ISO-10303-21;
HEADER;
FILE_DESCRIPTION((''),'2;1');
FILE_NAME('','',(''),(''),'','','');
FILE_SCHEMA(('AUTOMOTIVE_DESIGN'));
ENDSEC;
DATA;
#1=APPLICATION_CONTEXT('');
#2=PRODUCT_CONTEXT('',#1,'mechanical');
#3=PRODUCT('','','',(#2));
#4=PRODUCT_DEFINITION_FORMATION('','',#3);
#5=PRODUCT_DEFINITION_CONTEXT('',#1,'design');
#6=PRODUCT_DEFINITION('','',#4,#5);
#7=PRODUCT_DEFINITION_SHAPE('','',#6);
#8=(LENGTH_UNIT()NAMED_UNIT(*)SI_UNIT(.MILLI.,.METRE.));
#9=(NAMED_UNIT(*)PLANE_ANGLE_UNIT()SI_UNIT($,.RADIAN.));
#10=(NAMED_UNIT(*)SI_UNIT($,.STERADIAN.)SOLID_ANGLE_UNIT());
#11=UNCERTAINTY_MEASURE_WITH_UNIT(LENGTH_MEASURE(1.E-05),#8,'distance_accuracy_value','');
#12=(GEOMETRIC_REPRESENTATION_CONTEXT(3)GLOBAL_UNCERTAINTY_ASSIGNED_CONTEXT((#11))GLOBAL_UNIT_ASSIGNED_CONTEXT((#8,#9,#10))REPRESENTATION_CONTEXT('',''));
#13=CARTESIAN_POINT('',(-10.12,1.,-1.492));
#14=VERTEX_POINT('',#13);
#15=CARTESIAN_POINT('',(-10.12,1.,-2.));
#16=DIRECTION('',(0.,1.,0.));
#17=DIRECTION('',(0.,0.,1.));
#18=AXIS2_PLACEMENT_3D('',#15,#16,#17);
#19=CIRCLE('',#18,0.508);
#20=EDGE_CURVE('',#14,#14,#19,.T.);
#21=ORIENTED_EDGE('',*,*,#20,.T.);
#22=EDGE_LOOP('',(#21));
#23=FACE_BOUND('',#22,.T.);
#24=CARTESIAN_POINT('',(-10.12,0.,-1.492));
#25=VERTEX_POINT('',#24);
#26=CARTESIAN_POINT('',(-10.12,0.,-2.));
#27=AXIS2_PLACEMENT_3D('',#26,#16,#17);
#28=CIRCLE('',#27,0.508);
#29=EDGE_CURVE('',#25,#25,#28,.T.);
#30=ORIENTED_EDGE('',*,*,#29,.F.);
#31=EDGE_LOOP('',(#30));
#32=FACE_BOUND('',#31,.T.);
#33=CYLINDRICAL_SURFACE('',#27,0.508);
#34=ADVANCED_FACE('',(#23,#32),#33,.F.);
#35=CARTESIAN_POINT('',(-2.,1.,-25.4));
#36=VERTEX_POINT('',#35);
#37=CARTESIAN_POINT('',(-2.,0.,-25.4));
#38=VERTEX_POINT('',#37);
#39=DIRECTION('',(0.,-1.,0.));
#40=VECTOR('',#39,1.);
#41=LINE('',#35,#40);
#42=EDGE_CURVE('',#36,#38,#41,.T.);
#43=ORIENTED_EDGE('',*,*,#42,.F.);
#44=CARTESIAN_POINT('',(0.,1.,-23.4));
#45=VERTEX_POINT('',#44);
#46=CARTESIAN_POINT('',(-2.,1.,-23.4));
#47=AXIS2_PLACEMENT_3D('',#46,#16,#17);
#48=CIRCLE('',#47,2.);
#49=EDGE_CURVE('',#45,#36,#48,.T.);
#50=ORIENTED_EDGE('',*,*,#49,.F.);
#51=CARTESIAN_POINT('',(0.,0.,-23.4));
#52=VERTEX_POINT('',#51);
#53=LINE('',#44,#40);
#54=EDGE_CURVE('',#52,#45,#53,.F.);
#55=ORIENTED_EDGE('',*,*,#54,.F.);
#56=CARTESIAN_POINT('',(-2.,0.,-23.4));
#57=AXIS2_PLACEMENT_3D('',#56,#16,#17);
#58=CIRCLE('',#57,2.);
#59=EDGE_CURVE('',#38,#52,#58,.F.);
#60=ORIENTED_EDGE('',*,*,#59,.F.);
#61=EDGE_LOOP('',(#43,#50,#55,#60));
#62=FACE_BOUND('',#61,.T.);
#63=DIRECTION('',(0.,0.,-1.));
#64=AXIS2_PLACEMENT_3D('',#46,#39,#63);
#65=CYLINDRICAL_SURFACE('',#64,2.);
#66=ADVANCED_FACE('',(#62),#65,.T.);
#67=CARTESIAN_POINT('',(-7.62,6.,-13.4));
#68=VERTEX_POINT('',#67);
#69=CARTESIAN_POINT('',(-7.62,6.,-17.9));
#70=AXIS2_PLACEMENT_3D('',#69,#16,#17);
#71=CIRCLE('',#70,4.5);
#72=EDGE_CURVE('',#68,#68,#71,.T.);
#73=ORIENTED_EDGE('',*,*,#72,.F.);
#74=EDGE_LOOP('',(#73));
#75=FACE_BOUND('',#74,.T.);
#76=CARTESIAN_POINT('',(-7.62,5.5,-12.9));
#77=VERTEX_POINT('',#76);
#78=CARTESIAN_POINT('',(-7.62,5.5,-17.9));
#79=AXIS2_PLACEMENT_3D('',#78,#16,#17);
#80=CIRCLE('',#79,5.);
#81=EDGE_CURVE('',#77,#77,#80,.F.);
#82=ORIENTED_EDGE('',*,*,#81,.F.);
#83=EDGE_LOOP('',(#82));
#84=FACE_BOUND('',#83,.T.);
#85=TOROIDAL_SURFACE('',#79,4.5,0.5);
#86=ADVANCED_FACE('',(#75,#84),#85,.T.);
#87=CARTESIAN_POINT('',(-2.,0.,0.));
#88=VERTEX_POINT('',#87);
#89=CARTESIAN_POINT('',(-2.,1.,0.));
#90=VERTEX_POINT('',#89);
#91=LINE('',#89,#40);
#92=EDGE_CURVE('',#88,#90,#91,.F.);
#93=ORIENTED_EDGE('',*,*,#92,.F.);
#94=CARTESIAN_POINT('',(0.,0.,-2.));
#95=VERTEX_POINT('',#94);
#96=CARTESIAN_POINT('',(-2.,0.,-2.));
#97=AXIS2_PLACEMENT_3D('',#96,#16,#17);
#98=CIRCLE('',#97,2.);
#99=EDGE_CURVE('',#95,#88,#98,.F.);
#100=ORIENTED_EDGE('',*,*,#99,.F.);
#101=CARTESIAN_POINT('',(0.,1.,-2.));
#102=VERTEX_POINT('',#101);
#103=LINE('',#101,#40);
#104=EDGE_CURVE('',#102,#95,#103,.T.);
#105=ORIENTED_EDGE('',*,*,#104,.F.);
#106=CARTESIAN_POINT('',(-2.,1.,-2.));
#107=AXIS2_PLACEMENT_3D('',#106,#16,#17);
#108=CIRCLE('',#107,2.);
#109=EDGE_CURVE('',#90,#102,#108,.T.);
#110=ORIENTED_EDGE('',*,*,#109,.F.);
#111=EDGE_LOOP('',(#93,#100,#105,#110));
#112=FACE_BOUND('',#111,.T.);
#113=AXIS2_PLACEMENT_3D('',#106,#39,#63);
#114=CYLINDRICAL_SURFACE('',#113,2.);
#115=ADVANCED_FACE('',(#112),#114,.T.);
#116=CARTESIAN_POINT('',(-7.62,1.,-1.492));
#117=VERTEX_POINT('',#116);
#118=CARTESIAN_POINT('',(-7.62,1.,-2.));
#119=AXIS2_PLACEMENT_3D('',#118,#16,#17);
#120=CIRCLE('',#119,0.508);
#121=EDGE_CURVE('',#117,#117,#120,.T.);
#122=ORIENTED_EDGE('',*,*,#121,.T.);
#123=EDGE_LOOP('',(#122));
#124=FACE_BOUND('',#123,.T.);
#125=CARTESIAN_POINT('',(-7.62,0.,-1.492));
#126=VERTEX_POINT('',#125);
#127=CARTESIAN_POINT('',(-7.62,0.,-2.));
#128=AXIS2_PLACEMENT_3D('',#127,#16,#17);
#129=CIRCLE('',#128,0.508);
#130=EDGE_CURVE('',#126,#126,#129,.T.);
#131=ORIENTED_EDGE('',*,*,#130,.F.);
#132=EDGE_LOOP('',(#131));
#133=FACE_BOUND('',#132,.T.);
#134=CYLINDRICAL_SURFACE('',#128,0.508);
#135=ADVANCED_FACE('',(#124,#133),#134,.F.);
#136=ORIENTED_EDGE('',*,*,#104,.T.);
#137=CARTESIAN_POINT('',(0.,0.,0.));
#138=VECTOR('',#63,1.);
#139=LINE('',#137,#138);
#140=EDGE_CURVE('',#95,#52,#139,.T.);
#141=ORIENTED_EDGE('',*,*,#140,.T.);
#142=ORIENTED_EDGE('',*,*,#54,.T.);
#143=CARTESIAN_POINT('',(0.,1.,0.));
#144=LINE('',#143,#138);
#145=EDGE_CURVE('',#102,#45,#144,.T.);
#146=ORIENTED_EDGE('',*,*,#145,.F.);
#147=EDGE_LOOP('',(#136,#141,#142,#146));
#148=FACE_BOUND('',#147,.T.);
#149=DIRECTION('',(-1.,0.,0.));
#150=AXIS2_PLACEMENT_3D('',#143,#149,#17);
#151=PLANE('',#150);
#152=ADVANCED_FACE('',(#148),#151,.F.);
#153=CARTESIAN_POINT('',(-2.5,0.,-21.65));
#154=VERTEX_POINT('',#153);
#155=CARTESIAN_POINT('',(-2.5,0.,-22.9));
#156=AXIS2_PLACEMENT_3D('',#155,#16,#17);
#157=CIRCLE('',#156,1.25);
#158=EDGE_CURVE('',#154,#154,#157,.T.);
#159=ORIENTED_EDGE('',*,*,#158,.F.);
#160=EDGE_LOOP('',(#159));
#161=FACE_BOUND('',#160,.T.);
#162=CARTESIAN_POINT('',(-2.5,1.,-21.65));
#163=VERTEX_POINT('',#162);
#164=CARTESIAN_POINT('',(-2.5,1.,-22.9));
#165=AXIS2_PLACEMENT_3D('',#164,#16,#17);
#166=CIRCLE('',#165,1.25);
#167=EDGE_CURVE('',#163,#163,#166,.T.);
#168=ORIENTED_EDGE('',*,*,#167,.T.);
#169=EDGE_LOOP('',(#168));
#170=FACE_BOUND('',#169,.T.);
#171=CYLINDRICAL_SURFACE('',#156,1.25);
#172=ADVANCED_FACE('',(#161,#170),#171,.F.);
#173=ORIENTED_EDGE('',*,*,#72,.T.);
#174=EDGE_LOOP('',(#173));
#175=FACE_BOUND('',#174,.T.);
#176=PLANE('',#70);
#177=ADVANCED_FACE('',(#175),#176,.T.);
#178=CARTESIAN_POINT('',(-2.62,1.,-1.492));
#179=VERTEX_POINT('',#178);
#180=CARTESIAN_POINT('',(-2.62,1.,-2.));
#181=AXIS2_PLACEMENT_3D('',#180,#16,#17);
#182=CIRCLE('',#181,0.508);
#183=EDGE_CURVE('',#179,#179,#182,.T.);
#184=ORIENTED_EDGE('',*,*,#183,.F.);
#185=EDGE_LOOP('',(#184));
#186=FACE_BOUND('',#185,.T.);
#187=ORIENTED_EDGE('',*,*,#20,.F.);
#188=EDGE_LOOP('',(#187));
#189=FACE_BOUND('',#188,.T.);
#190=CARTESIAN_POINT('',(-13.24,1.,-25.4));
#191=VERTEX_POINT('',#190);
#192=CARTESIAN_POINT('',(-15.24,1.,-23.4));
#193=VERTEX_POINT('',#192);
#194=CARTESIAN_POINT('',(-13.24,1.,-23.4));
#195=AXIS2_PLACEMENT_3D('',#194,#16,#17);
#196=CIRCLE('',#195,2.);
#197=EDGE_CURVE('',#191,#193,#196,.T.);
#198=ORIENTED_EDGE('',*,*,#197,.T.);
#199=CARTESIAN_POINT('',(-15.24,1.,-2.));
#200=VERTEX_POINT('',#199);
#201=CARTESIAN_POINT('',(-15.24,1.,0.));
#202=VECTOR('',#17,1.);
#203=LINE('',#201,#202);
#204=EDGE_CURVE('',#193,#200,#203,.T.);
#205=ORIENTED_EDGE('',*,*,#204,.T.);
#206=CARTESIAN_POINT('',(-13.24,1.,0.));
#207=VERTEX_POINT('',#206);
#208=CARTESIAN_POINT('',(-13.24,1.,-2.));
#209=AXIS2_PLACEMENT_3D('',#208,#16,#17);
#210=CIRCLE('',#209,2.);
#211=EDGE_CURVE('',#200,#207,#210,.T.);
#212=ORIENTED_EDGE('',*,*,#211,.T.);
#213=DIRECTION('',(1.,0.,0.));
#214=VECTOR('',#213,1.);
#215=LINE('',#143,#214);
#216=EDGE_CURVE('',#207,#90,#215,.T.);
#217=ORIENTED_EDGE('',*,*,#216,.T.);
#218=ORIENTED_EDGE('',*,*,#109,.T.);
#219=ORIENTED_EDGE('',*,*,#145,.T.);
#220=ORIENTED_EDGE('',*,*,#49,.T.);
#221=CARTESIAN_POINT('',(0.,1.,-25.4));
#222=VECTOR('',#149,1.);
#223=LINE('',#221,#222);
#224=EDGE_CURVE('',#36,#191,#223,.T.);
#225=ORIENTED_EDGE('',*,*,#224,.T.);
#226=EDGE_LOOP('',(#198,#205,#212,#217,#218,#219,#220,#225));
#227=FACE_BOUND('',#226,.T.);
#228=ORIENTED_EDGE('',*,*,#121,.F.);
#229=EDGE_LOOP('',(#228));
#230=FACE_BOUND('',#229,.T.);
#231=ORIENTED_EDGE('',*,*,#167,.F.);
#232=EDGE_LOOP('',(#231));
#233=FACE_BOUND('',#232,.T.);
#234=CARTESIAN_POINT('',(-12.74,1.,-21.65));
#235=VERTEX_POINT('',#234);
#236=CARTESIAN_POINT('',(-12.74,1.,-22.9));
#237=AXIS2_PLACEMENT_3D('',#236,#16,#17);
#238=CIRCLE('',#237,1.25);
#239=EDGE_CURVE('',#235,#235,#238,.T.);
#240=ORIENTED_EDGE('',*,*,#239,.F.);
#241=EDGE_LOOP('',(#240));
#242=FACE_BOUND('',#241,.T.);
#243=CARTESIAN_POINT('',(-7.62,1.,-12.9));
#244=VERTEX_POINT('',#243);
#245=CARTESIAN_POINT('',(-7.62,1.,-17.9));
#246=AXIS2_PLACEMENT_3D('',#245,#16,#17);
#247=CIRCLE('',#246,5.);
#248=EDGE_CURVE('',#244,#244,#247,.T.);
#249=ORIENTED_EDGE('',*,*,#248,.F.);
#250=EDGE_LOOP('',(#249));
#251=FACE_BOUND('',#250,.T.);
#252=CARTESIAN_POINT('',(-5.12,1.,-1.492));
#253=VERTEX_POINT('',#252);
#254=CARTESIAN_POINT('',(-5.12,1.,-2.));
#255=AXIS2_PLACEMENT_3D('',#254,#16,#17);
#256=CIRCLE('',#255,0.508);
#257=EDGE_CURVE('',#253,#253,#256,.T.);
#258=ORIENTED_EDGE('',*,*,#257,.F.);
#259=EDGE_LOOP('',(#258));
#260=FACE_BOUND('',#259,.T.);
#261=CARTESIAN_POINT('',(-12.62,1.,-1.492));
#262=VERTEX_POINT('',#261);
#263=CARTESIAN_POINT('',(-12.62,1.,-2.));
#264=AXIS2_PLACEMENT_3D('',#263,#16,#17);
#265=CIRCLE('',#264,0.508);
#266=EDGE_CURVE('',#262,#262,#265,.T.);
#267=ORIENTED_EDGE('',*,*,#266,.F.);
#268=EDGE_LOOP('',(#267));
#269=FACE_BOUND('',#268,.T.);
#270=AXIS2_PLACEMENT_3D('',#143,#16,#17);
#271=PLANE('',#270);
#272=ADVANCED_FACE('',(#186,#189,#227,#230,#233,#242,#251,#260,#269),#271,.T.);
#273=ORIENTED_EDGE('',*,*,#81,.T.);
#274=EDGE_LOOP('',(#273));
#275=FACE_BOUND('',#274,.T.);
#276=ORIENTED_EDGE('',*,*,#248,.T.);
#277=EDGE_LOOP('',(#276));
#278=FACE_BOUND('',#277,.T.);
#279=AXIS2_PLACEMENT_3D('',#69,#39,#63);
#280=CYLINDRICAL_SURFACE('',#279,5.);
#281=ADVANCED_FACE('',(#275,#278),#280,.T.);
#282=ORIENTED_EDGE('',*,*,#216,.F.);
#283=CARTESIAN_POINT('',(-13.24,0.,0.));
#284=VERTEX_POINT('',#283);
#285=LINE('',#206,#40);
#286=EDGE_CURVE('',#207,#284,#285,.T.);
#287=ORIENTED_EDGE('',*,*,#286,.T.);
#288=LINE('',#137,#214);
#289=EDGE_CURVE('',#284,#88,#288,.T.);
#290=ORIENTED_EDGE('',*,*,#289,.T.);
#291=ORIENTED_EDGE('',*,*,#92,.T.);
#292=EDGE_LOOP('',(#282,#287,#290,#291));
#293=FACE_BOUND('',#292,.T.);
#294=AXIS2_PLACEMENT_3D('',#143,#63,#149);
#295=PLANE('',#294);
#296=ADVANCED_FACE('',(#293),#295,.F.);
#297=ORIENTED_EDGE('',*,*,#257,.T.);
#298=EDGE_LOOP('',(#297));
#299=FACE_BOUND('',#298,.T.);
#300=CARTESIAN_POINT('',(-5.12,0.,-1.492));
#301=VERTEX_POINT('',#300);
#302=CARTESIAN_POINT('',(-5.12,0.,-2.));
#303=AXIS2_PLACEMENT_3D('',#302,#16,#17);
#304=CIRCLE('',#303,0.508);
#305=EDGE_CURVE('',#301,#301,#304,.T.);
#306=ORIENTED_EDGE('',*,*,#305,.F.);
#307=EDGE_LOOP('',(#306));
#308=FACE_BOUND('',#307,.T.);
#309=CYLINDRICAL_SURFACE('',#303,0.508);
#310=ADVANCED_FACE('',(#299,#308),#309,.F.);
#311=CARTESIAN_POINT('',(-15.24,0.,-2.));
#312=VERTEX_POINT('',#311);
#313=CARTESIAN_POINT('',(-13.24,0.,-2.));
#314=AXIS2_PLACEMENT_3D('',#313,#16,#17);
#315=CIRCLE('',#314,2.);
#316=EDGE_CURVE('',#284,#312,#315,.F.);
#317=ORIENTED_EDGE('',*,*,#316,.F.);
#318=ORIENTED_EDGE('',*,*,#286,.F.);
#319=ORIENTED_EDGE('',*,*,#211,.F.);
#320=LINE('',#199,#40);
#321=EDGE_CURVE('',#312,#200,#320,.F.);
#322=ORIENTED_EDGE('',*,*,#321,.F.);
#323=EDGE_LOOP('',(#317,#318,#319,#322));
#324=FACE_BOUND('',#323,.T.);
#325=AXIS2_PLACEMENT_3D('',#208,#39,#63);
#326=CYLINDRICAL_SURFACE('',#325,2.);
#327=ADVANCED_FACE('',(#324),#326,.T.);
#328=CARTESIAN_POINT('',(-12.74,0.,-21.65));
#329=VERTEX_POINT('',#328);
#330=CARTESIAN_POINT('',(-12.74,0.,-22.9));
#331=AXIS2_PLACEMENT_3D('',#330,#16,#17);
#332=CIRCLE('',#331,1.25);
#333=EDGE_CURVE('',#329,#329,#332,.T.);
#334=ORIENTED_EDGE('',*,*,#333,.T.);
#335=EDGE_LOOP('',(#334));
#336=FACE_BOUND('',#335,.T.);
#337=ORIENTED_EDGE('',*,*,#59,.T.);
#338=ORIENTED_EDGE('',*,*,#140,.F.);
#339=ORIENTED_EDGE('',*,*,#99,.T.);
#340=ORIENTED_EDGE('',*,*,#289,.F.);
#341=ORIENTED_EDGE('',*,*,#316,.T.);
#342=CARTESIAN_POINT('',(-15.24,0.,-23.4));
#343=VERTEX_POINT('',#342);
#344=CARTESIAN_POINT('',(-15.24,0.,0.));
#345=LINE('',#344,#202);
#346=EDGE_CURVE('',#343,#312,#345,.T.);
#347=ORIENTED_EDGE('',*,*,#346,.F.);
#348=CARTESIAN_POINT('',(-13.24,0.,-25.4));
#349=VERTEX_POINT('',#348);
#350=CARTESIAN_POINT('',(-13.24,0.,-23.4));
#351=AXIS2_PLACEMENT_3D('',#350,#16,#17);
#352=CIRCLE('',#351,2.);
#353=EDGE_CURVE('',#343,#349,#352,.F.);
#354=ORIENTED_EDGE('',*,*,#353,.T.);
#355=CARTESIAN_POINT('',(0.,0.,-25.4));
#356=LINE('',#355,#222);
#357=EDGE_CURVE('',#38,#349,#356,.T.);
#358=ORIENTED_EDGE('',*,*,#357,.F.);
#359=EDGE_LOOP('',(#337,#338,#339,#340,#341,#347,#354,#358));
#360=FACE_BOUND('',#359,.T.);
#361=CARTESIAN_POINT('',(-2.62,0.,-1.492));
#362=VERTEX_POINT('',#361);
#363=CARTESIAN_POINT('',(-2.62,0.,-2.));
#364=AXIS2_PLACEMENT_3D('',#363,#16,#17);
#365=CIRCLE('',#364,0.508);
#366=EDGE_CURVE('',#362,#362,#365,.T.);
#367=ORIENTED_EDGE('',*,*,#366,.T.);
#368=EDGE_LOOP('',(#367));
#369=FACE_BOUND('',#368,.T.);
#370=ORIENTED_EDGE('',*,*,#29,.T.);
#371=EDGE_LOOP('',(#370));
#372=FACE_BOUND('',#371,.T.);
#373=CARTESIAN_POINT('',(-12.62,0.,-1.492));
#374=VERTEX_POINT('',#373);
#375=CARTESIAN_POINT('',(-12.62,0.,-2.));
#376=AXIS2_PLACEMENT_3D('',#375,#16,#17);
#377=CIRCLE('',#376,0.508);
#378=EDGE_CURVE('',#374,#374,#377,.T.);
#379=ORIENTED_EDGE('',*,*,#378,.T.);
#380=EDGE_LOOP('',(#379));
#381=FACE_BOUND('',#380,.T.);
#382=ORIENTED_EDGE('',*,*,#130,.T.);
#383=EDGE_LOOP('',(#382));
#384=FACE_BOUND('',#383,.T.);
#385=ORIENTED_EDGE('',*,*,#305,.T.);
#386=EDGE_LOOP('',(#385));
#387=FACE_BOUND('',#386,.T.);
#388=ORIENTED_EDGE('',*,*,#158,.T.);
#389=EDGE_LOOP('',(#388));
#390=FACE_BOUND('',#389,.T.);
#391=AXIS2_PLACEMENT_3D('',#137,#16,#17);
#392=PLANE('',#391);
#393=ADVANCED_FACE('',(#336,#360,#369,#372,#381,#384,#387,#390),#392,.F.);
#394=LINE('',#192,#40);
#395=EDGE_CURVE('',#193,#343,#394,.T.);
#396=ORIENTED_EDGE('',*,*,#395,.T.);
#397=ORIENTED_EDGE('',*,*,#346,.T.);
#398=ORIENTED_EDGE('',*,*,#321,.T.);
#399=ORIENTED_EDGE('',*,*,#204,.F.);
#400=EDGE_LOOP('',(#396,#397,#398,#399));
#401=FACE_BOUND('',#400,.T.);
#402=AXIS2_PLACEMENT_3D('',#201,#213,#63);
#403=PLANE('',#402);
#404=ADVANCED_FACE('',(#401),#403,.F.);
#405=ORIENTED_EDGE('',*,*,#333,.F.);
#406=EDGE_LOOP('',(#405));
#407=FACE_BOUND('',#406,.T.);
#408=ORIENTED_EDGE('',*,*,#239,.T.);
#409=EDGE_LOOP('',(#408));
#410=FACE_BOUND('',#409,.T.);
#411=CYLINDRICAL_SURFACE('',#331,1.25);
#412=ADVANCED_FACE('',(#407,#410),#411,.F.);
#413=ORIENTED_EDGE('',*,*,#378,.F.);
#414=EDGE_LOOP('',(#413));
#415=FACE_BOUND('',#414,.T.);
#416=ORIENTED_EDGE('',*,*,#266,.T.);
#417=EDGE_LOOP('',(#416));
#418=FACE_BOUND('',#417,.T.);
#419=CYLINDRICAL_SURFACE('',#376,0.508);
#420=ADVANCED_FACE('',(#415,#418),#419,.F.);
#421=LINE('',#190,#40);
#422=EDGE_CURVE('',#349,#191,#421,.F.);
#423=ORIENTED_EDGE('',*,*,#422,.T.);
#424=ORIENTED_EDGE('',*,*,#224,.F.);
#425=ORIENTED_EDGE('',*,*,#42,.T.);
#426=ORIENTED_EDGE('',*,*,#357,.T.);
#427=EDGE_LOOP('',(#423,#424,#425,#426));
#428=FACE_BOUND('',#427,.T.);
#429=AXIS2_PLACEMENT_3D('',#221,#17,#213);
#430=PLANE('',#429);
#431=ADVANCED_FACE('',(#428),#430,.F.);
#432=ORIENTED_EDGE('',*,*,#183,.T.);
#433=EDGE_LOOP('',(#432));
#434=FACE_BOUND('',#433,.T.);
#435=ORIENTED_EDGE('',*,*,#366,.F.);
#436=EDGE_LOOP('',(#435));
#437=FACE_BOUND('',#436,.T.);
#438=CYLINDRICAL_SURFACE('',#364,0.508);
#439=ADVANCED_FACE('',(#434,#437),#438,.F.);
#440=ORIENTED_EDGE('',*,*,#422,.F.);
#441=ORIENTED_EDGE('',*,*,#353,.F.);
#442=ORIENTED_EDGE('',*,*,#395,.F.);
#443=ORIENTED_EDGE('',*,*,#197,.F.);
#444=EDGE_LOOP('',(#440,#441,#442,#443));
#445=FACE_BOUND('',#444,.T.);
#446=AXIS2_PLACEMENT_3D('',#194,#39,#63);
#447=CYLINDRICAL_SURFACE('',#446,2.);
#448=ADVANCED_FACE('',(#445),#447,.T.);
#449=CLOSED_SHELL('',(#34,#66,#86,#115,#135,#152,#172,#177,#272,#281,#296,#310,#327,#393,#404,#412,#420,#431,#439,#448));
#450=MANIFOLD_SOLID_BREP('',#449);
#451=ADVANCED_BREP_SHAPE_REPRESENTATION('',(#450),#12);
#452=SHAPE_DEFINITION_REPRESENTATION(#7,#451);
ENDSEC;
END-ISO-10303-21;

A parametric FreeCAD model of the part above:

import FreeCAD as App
import Part
import Sketcher


def edges_at(feature, points):
    """Names of the edges that pass closest to the given points."""
    edges = feature.Shape.Edges
    near = lambda p: min(range(len(edges)), key=lambda i: edges[i].distToShape(Part.Vertex(*p))[0])
    return sorted({f"Edge{near(p) + 1}" for p in points})

doc = App.newDocument("Part")
body = doc.addObject("PartDesign::Body", "Body")

sketch1 = body.newObject("Sketcher::SketchObject", "Sketch")
sketch1.AttachmentSupport = (doc.getObject("XZ_Plane"), [""])
sketch1.MapMode = "FlatFace"
sketch1.addGeometry([
    Part.LineSegment(App.Vector(-15, -25, 0), App.Vector(-15, 0, 0)),
    Part.LineSegment(App.Vector(-15, 0, 0), App.Vector(0, 0, 0)),
    Part.LineSegment(App.Vector(0, 0, 0), App.Vector(0, -25, 0)),
    Part.LineSegment(App.Vector(0, -25, 0), App.Vector(-15, -25, 0)),
], False)
sketch1.addConstraint([
    Sketcher.Constraint("Coincident", 0, 2, 1, 1),
    Sketcher.Constraint("Coincident", 1, 2, 2, 1),
    Sketcher.Constraint("Coincident", 2, 2, 3, 1),
    Sketcher.Constraint("Coincident", 3, 2, 0, 1),
    Sketcher.Constraint("Vertical", 0),
    Sketcher.Constraint("Horizontal", 1),
    Sketcher.Constraint("Vertical", 2),
    Sketcher.Constraint("Horizontal", 3),
    Sketcher.Constraint("Coincident", 1, 2, -1, 1),
    Sketcher.Constraint("DistanceY", 0, 1, 0, 2, 25.4),
    Sketcher.Constraint("DistanceX", 1, 1, 1, 2, 15.24),
])
pad1 = body.newObject("PartDesign::Pad", "Pad")
pad1.Profile = sketch1
pad1.Length = 1
pad1.Reversed = True
doc.recompute()

fillet = body.newObject("PartDesign::Fillet", "Fillet")
fillet.Base = (pad1, edges_at(pad1, [
    (0, 0.5, 0),
    (-15.24, 0.5, 0),
    (-15.24, 0.5, -25.4),
    (0, 0.5, -25.4),
]))
fillet.Radius = 2

sketch2 = body.newObject("Sketcher::SketchObject", "Sketch001")
sketch2.AttachmentSupport = (doc.getObject("XZ_Plane"), [""])
sketch2.MapMode = "FlatFace"
sketch2.AttachmentOffset = App.Placement(App.Vector(0, 0, -1), App.Rotation())
sketch2.addGeometry([
    Part.Circle(App.Vector(-2.5, -22.9, 0), App.Vector(0, 0, 1), 1.2),
    Part.Circle(App.Vector(-12.7, -22.9, 0), App.Vector(0, 0, 1), 1.2),
    Part.Circle(App.Vector(-12.6, -2, 0), App.Vector(0, 0, 1), 0.5),
    Part.Circle(App.Vector(-10.1, -2, 0), App.Vector(0, 0, 1), 0.5),
    Part.Circle(App.Vector(-7.6, -2, 0), App.Vector(0, 0, 1), 0.5),
    Part.Circle(App.Vector(-5.1, -2, 0), App.Vector(0, 0, 1), 0.5),
    Part.Circle(App.Vector(-2.6, -2, 0), App.Vector(0, 0, 1), 0.5),
], False)
sketch2.addConstraint([
    Sketcher.Constraint("Equal", 0, 1),
    Sketcher.Constraint("Equal", 2, 3),
    Sketcher.Constraint("Equal", 3, 4),
    Sketcher.Constraint("Equal", 4, 5),
    Sketcher.Constraint("Equal", 5, 6),
    Sketcher.Constraint("Horizontal", 0, 3, 1, 3),
    Sketcher.Constraint("Horizontal", 2, 3, 3, 3),
    Sketcher.Constraint("Horizontal", 3, 3, 4, 3),
    Sketcher.Constraint("Horizontal", 4, 3, 5, 3),
    Sketcher.Constraint("Horizontal", 5, 3, 6, 3),
    Sketcher.Constraint("Diameter", 0, 2.5),
    Sketcher.Constraint("Diameter", 2, 1.016),
    Sketcher.Constraint("DistanceY", 2, 3, -1, 1, 2.0),
    Sketcher.Constraint("DistanceX", 2, 3, 4, 3, 5.0),
    Sketcher.Constraint("DistanceX", 3, 3, 5, 3, 5.0),
    Sketcher.Constraint("DistanceX", 4, 3, 6, 3, 5.0),
    Sketcher.Constraint("DistanceX", 0, 3, -1, 1, 2.5),
    Sketcher.Constraint("DistanceY", 0, 3, -1, 1, 22.9),
    Sketcher.Constraint("DistanceX", 2, 3, 3, 3, 2.5),
    Sketcher.Constraint("DistanceX", 1, 3, -1, 1, 12.74),
    Sketcher.Constraint("DistanceX", 2, 3, -1, 1, 12.62),
])
pocket1 = body.newObject("PartDesign::Pocket", "Pocket")
pocket1.Profile = sketch2
pocket1.Length = 1
pocket1.Reversed = True

sketch3 = body.newObject("Sketcher::SketchObject", "Sketch002")
sketch3.AttachmentSupport = (doc.getObject("XZ_Plane"), [""])
sketch3.MapMode = "FlatFace"
sketch3.AttachmentOffset = App.Placement(App.Vector(0, 0, -1), App.Rotation())
sketch3.addGeometry(Part.Circle(App.Vector(-8, -18, 0), App.Vector(0, 0, 1), 5), False)
sketch3.addConstraint([
    Sketcher.Constraint("Diameter", 0, 10.0),
    Sketcher.Constraint("DistanceY", 0, 3, -1, 1, 17.9),
    Sketcher.Constraint("DistanceX", 0, 3, -1, 1, 7.62),
])
pad2 = body.newObject("PartDesign::Pad", "Pad001")
pad2.Profile = sketch3
pad2.Length = 5
pad2.Reversed = True
doc.recompute()

fillet2 = body.newObject("PartDesign::Fillet", "Fillet001")
fillet2.Base = (pad2, edges_at(pad2, [(-7.62, 6, -22.9)]))
fillet2.Radius = 0.5

doc.recompute()
